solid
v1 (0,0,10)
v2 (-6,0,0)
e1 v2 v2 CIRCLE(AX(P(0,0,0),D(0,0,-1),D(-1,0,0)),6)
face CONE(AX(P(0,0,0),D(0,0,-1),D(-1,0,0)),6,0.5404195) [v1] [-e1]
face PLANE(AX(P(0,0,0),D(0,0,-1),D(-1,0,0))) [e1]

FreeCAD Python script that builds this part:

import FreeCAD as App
import Part
import Sketcher

V = App.Vector

doc = App.newDocument("Part")
params = doc.addObject("Spreadsheet::Sheet", "Params")
for row, (alias, value) in enumerate([
    ("sketch1_width", "6 mm"),
    ("sketch1_height", "10 mm"),
    ("revolution_angle", "360 deg"),
], start=1):
    params.set(f"A{row}", alias)
    params.set(f"B{row}", "=" + value)
    params.setAlias(f"B{row}", alias)

body = doc.addObject("PartDesign::Body", "Body")

# Sketch on XZ plane
sketch1 = body.newObject("Sketcher::SketchObject", "Sketch")
sketch1.AttachmentSupport = (doc.getObject("XZ_Plane"), [""])
sketch1.MapMode = "FlatFace"
sketch1.addGeometry(Part.LineSegment(V(0, 0, 0), V(6, 0, 0)), False)
sketch1.addGeometry(Part.LineSegment(V(6, 0, 0), V(0, 10, 0)), False)
sketch1.addGeometry(Part.LineSegment(V(0, 10, 0), V(0, 0, 0)), False)
sketch1.addConstraint(Sketcher.Constraint("Coincident", 0, 2, 1, 1))
sketch1.addConstraint(Sketcher.Constraint("Coincident", 1, 2, 2, 1))
sketch1.addConstraint(Sketcher.Constraint("Coincident", 2, 2, 0, 1))
sketch1.addConstraint(Sketcher.Constraint("Horizontal", 0))
sketch1.addConstraint(Sketcher.Constraint("Vertical", 2))
sketch1.addConstraint(Sketcher.Constraint("Coincident", 2, 2, -1, 1))
sketch1.addConstraint(Sketcher.Constraint("DistanceX", 0, 1, 0, 2, 6.0))
sketch1.addConstraint(Sketcher.Constraint("DistanceY", 2, 2, 2, 1, 10.0))
sketch1.setExpression("Constraints[6]", "Params.sketch1_width")
sketch1.setExpression("Constraints[7]", "Params.sketch1_height")
revolution = body.newObject("PartDesign::Revolution", "Revolution")
revolution.Profile = sketch1
revolution.ReferenceAxis = (sketch1, ["V_Axis"])
revolution.setExpression("Angle", "Params.revolution_angle")

doc.recompute()
